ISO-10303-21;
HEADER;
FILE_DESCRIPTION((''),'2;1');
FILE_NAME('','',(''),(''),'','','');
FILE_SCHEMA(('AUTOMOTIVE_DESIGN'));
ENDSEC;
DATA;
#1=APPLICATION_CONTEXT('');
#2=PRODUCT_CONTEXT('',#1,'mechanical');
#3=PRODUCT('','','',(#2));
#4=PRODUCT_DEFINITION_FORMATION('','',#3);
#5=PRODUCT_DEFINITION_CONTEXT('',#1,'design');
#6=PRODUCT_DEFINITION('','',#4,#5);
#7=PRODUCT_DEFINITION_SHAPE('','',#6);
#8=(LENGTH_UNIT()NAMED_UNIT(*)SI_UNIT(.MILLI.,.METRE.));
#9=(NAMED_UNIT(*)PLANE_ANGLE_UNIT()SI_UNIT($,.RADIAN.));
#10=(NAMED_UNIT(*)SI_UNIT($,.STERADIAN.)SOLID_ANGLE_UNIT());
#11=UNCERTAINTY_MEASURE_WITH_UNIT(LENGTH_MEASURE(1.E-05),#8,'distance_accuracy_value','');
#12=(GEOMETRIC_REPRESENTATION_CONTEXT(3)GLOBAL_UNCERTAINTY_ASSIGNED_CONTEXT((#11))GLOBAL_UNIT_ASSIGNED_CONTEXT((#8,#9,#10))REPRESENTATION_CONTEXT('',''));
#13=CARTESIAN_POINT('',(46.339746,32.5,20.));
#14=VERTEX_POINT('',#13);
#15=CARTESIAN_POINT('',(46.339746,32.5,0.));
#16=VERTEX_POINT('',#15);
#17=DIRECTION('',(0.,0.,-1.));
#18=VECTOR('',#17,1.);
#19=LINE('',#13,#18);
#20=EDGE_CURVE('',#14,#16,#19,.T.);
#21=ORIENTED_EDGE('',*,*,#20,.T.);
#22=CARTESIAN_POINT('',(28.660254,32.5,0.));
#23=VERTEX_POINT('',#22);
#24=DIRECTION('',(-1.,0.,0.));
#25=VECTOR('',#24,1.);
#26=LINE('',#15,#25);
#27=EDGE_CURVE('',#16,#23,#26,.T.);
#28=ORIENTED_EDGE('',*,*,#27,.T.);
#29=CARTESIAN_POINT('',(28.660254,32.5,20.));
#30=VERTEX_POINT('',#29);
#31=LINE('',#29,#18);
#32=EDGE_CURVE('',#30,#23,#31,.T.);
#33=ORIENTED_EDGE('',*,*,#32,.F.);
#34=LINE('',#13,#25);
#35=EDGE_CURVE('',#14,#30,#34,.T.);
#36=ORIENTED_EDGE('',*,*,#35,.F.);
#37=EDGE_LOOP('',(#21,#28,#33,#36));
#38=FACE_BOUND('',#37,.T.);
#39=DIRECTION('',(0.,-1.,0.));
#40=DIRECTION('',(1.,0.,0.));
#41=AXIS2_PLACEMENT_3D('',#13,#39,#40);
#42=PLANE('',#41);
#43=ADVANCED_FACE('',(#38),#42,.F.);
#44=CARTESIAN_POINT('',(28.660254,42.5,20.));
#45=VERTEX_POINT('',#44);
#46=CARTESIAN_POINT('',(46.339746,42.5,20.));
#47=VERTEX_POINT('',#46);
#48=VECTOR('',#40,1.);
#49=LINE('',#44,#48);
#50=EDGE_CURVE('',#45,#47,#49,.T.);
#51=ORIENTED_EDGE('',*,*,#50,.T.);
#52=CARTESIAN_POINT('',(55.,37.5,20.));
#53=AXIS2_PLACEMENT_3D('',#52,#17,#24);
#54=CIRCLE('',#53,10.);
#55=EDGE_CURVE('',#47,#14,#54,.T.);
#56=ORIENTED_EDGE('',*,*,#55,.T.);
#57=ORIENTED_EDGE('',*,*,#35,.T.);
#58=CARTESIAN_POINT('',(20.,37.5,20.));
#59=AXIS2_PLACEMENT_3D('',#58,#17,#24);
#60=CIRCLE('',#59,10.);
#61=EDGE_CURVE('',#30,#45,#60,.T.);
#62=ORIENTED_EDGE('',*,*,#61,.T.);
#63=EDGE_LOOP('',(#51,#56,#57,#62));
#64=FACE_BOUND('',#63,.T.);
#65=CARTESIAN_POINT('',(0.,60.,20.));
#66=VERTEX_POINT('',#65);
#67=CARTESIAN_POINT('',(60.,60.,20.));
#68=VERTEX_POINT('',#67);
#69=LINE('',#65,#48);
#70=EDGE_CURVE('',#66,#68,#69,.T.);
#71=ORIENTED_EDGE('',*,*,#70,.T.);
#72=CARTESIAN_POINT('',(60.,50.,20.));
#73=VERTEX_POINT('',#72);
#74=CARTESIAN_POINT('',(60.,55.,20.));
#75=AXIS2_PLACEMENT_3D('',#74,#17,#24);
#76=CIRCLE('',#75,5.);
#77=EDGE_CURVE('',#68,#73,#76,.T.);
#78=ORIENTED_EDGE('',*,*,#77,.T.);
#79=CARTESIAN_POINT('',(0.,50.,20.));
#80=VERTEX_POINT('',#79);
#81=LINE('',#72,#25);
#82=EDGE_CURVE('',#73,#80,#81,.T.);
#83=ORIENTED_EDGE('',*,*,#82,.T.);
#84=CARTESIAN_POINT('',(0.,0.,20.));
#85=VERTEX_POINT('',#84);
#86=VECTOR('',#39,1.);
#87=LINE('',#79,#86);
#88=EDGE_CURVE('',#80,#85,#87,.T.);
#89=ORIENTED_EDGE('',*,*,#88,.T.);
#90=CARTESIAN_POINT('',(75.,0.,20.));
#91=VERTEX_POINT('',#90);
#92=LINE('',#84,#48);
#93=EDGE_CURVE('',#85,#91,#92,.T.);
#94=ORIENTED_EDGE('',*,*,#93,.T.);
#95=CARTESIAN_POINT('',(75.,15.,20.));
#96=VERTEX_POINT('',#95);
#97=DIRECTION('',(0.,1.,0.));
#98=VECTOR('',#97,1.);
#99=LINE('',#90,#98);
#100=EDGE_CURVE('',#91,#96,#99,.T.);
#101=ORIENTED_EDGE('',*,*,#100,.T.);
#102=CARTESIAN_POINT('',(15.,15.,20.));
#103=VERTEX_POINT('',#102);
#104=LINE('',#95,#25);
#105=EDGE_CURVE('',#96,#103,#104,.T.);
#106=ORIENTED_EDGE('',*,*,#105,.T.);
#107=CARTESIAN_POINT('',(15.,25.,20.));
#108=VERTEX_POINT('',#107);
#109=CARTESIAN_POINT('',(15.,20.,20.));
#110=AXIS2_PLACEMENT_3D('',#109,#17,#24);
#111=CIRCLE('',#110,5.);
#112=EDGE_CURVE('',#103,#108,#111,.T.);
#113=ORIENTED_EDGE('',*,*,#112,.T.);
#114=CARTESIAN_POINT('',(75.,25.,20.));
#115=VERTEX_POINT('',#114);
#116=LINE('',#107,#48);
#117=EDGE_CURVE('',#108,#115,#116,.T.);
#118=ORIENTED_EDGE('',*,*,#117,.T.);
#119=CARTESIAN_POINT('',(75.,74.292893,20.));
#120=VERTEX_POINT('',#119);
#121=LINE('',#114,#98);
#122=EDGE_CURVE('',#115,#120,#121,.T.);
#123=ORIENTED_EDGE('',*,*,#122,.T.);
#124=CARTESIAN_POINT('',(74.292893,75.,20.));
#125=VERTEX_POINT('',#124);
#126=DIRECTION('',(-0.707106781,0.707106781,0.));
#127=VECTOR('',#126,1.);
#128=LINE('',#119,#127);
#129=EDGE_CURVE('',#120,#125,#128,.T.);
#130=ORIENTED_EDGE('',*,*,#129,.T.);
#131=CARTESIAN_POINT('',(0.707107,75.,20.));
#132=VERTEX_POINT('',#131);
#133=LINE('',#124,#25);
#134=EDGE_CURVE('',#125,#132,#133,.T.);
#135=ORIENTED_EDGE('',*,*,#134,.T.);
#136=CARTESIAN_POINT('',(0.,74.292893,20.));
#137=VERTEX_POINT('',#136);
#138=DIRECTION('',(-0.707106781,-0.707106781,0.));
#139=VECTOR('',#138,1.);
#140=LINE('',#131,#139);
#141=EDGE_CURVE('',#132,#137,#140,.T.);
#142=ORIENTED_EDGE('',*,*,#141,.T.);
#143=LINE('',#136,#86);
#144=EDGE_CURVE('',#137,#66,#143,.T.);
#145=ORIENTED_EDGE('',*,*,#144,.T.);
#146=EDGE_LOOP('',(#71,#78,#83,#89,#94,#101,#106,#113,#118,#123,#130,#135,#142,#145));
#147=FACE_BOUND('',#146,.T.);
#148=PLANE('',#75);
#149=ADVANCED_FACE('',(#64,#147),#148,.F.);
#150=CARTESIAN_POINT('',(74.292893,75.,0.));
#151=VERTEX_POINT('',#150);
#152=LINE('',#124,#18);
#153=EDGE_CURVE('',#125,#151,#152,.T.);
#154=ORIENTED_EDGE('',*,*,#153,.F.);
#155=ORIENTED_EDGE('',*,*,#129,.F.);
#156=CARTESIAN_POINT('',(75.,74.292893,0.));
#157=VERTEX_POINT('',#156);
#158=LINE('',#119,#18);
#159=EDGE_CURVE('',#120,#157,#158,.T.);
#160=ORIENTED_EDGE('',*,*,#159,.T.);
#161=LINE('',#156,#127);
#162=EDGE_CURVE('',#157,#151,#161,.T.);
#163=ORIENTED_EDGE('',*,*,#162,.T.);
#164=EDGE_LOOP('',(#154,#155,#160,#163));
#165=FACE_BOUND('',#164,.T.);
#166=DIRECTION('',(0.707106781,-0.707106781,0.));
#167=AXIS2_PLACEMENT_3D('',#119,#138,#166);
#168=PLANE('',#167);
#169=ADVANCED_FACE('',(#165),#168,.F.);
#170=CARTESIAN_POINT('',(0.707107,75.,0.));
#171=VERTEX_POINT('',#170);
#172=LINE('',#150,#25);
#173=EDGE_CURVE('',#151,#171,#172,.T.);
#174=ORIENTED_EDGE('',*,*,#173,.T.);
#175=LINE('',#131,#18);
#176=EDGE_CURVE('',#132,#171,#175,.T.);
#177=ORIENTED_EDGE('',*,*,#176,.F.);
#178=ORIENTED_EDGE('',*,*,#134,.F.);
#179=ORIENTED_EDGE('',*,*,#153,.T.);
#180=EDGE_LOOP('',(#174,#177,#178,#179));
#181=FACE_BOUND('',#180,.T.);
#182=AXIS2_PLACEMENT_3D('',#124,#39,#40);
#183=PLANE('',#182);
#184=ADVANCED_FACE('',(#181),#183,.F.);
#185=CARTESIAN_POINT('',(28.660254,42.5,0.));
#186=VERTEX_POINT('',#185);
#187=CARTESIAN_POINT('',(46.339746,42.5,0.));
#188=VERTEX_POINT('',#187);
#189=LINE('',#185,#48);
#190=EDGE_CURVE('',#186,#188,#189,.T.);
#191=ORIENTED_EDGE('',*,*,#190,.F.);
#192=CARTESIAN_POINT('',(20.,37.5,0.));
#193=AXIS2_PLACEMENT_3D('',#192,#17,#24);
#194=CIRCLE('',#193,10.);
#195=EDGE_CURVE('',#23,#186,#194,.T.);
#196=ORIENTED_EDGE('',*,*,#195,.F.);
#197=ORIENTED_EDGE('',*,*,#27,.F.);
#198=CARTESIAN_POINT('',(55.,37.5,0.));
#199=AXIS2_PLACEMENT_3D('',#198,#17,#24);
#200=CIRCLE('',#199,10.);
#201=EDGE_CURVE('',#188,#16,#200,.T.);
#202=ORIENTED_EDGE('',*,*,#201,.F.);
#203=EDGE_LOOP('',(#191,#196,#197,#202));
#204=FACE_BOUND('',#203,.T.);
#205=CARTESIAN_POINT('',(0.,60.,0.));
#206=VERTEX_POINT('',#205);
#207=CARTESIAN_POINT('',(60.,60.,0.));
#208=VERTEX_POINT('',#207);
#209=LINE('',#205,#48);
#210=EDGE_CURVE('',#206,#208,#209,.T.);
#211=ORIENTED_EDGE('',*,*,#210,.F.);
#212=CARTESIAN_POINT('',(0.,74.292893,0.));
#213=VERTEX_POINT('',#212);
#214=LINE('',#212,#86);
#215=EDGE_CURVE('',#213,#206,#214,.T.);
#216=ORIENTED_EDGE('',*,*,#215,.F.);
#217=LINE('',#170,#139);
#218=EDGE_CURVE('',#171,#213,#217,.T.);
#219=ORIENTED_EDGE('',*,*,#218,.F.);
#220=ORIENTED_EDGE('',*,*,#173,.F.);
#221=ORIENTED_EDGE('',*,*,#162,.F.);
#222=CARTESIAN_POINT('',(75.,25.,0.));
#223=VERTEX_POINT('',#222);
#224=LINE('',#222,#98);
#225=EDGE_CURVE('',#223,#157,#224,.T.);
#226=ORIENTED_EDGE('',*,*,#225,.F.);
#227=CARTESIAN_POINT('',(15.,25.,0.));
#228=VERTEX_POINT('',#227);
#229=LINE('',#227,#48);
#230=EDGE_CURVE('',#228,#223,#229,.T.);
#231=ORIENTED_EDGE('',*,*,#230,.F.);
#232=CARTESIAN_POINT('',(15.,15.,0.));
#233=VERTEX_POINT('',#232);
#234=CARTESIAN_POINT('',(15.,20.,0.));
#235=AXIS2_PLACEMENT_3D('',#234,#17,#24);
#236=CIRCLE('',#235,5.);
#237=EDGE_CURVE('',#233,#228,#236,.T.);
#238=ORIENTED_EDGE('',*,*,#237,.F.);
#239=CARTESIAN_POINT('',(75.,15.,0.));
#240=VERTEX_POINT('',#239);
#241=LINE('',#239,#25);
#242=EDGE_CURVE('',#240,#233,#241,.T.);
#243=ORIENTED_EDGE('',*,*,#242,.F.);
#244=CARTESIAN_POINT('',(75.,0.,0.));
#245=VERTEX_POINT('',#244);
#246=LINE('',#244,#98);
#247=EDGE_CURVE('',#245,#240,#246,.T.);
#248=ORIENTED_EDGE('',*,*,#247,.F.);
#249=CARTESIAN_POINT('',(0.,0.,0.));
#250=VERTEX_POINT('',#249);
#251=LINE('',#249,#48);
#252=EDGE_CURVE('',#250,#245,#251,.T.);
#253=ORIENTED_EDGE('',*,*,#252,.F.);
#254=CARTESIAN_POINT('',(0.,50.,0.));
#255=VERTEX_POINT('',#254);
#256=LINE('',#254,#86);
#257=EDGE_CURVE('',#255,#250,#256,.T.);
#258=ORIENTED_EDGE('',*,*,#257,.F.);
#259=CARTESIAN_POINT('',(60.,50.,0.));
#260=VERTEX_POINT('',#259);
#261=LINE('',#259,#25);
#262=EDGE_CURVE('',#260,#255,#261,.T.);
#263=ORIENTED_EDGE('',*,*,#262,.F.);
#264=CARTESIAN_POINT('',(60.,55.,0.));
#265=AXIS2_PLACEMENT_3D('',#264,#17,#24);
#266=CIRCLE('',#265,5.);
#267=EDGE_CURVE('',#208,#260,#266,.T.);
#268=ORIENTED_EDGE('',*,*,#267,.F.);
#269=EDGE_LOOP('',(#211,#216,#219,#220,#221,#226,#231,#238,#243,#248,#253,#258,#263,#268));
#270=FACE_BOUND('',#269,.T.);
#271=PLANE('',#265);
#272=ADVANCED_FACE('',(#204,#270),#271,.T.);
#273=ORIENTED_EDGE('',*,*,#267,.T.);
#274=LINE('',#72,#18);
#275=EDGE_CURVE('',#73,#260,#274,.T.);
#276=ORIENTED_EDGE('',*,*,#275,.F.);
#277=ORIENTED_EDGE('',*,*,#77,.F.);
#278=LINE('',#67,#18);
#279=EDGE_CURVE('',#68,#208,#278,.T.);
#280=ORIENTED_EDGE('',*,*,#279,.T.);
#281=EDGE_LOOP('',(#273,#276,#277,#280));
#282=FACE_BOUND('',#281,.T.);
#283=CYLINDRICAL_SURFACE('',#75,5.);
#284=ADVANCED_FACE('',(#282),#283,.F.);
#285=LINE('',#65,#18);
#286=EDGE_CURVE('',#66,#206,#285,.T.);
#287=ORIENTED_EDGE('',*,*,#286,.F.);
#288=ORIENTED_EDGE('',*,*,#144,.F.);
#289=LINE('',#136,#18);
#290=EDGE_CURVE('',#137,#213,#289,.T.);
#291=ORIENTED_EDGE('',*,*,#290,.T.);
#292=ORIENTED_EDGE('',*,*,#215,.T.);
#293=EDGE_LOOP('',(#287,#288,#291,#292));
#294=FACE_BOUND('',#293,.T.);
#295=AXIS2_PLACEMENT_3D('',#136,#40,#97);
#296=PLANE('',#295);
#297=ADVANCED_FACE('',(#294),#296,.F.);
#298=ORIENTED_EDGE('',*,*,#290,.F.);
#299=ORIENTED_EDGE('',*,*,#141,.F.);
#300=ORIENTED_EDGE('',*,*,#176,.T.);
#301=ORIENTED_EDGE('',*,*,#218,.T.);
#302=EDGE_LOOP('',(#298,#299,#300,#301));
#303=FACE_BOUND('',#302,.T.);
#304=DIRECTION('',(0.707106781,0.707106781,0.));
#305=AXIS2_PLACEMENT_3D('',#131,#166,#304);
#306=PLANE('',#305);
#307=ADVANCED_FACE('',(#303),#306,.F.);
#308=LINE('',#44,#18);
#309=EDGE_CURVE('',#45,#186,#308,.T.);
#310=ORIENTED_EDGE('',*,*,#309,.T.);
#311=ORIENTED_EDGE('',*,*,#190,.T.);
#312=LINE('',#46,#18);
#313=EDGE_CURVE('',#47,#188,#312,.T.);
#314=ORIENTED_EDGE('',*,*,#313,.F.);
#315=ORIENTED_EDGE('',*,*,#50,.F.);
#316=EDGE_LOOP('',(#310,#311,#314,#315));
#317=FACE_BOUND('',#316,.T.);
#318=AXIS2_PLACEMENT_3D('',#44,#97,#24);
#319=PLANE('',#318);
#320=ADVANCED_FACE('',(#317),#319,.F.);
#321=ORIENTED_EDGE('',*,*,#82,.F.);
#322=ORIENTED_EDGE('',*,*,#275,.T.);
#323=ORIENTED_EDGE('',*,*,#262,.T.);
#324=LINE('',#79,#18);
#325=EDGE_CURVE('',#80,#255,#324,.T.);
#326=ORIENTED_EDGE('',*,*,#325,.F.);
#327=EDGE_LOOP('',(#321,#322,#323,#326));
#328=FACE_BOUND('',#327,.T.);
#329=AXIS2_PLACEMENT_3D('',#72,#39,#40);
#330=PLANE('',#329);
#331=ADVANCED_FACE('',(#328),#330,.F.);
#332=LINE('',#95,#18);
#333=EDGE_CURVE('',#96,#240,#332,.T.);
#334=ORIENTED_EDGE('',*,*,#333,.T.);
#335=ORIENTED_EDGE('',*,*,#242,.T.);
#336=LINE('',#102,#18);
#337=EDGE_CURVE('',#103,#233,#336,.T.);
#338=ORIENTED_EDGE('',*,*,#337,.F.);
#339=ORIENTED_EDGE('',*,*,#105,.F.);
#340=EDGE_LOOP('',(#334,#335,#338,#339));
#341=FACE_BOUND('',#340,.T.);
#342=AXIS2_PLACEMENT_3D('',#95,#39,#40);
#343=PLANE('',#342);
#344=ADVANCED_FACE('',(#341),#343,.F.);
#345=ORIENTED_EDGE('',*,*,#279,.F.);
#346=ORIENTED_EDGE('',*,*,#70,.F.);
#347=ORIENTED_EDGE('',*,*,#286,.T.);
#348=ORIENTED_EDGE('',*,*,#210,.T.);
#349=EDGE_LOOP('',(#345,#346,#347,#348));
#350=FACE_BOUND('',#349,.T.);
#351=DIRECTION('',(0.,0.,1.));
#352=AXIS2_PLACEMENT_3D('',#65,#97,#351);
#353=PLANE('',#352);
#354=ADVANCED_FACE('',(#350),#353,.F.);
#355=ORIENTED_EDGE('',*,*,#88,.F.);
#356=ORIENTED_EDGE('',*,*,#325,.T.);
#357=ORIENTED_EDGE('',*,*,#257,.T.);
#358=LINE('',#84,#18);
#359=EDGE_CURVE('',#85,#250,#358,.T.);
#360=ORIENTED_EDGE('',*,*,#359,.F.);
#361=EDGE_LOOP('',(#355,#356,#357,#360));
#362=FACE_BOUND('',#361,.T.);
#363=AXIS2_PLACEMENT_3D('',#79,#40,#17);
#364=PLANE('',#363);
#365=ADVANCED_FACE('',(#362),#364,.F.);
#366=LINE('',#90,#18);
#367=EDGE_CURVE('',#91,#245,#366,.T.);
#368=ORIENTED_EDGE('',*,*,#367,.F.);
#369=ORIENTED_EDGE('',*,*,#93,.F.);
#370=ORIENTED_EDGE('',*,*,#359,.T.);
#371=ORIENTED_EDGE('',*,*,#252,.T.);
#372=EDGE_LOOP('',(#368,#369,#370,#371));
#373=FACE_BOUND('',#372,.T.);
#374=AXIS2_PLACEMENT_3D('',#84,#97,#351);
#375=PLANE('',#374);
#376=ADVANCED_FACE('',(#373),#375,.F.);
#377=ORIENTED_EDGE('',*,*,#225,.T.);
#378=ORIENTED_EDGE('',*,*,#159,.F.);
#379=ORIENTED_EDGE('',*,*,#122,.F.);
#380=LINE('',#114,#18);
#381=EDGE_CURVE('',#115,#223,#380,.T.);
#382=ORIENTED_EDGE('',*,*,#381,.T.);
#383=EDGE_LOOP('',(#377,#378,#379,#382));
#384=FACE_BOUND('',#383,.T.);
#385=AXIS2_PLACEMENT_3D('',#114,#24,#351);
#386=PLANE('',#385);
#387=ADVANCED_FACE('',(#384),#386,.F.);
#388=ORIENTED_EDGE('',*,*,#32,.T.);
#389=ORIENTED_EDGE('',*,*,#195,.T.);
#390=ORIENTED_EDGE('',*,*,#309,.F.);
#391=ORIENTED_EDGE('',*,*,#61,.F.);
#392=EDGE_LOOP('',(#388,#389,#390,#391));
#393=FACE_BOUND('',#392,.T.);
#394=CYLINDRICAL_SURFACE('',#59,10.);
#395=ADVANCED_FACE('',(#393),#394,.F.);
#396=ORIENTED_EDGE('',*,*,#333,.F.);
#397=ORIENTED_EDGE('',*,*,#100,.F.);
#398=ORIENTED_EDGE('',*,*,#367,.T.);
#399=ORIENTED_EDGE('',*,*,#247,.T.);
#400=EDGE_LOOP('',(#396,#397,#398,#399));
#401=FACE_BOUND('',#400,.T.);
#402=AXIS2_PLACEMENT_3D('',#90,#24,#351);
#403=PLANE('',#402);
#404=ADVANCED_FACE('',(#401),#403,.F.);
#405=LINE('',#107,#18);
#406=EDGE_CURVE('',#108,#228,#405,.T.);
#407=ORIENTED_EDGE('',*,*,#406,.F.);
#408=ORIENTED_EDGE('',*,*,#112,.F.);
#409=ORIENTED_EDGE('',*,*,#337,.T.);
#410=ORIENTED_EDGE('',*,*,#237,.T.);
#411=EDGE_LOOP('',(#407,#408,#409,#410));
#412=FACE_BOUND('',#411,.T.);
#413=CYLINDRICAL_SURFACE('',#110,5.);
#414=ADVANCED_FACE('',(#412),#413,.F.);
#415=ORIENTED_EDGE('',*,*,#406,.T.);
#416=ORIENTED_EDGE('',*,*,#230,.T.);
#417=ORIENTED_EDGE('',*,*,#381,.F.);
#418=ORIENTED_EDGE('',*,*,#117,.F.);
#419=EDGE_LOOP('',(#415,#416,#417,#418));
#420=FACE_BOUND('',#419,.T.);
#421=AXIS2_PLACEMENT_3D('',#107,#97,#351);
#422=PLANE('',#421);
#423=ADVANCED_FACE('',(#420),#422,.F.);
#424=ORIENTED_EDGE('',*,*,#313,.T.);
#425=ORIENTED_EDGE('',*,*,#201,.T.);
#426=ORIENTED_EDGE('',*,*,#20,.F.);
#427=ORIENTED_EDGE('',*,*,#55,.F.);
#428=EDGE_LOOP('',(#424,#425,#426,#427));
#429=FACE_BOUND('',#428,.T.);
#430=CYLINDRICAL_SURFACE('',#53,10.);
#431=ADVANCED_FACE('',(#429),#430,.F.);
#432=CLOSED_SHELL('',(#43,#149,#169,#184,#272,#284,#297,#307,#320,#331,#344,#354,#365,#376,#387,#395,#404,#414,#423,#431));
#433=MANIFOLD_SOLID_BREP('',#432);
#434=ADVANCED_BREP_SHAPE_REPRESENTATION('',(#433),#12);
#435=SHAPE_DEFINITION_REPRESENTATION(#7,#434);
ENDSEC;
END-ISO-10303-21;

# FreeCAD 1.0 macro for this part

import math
import FreeCAD as App
import Part
import Sketcher
Q = App.Units.Quantity

doc = App.newDocument("Part")
body = doc.addObject("PartDesign::Body", "Body")

# Sketch on XY plane
sketch1 = body.newObject("Sketcher::SketchObject", "Sketch")
sketch1.AttachmentSupport = (doc.getObject("XY_Plane"), [""])
sketch1.MapMode = "FlatFace"
sketch1.addGeometry([
    Part.LineSegment(App.Vector(0, 50, 0), App.Vector(0, 0, 0)),  # 0
    Part.LineSegment(App.Vector(0, 0, 0), App.Vector(75, 0, 0)),  # 1
    Part.LineSegment(App.Vector(75, 0, 0), App.Vector(75, 15, 0)),  # 2
    Part.LineSegment(App.Vector(75, 15, 0), App.Vector(15, 15, 0)),  # 3
    Part.ArcOfCircle(Part.Circle(App.Vector(15, 20, 0), App.Vector(0, 0, 1), 5), math.radians(90), math.radians(270)),  # 4
    Part.LineSegment(App.Vector(15, 25, 0), App.Vector(75, 25, 0)),  # 5
    Part.LineSegment(App.Vector(75, 25, 0), App.Vector(75, 74.3, 0)),  # 6
    Part.LineSegment(App.Vector(75, 74.3, 0), App.Vector(74.3, 75, 0)),  # 7
    Part.LineSegment(App.Vector(74.3, 75, 0), App.Vector(0.7, 75, 0)),  # 8
    Part.LineSegment(App.Vector(0.7, 75, 0), App.Vector(0, 74.3, 0)),  # 9
    Part.LineSegment(App.Vector(0, 74.3, 0), App.Vector(0, 60, 0)),  # 10
    Part.LineSegment(App.Vector(0, 60, 0), App.Vector(60, 60, 0)),  # 11
    Part.ArcOfCircle(Part.Circle(App.Vector(60, 55, 0), App.Vector(0, 0, 1), 5), math.radians(-90), math.radians(90)),  # 12
    Part.LineSegment(App.Vector(60, 50, 0), App.Vector(0, 50, 0)),  # 13
], False)
sketch1.addConstraint([
    Sketcher.Constraint("Coincident", 0, 2, 1, 1),
    Sketcher.Constraint("Coincident", 1, 2, 2, 1),
    Sketcher.Constraint("Coincident", 2, 2, 3, 1),
    Sketcher.Constraint("Tangent", 3, 2, 4, 2),
    Sketcher.Constraint("Tangent", 4, 1, 5, 1),
    Sketcher.Constraint("Coincident", 5, 2, 6, 1),
    Sketcher.Constraint("Coincident", 6, 2, 7, 1),
    Sketcher.Constraint("Coincident", 7, 2, 8, 1),
    Sketcher.Constraint("Coincident", 8, 2, 9, 1),
    Sketcher.Constraint("Coincident", 9, 2, 10, 1),
    Sketcher.Constraint("Coincident", 10, 2, 11, 1),
    Sketcher.Constraint("Tangent", 11, 2, 12, 2),
    Sketcher.Constraint("Tangent", 12, 1, 13, 1),
    Sketcher.Constraint("Coincident", 13, 2, 0, 1),
    Sketcher.Constraint("Vertical", 0),
    Sketcher.Constraint("Horizontal", 1),
    Sketcher.Constraint("Vertical", 2),
    Sketcher.Constraint("Horizontal", 3),
    Sketcher.Constraint("Horizontal", 5),
    Sketcher.Constraint("Vertical", 6),
    Sketcher.Constraint("Horizontal", 8),
    Sketcher.Constraint("Vertical", 10),
    Sketcher.Constraint("Horizontal", 11),
    Sketcher.Constraint("Horizontal", 13),
    Sketcher.Constraint("Coincident", 0, 2, -1, 1),
    Sketcher.Constraint("Equal", 4, 12),
    Sketcher.Constraint("PointOnObject", 9, 2, -2),
    Sketcher.Constraint("Perpendicular", 7, 9),
    Sketcher.Constraint("Horizontal", 6, 2, 9, 2),
    Sketcher.Constraint("Vertical", 2, 2, 5, 2),
    Sketcher.Constraint("Equal", 5, 11),
    Sketcher.Constraint("Equal", 7, 9),
    Sketcher.Constraint("Radius", 4, Q("5 mm")),
    Sketcher.Constraint("DistanceX", 1, 1, 1, 2, Q("75 mm")),
    Sketcher.Constraint("DistanceX", 3, 2, 3, 1, Q("60 mm")),
    Sketcher.Constraint("DistanceY", 0, 2, 0, 1, Q("50 mm")),
    Sketcher.Constraint("DistanceY", 2, 1, 2, 2, Q("15 mm")),
    Sketcher.Constraint("Distance", 7, Q("1 mm")),
    Sketcher.Constraint("DistanceY", -1, 1, 7, 2, Q("75 mm")),
])
pad1 = body.newObject("PartDesign::Pad", "Pad")
pad1.Profile = sketch1
pad1.Length = 20

# Sketch on XY plane
sketch2 = body.newObject("Sketcher::SketchObject", "Sketch001")
sketch2.AttachmentSupport = (doc.getObject("XY_Plane"), [""])
sketch2.MapMode = "FlatFace"
sketch2.addGeometry([
    Part.LineSegment(App.Vector(46, 42, 0), App.Vector(29, 42, 0)),
    Part.ArcOfCircle(Part.Circle(App.Vector(20, 38, 0), App.Vector(0, 0, 1), 10), math.radians(30), math.radians(330)),
    Part.LineSegment(App.Vector(29, 32, 0), App.Vector(46, 32, 0)),
    Part.ArcOfCircle(Part.Circle(App.Vector(55, 38, 0), App.Vector(0, 0, 1), 10), math.radians(-150), math.radians(150)),
], False)
sketch2.addConstraint([
    Sketcher.Constraint("Coincident", 0, 2, 1, 1),
    Sketcher.Constraint("Coincident", 1, 2, 2, 1),
    Sketcher.Constraint("Coincident", 2, 2, 3, 1),
    Sketcher.Constraint("Coincident", 3, 2, 0, 1),
    Sketcher.Constraint("Horizontal", 0),
    Sketcher.Constraint("Horizontal", 2),
    Sketcher.Constraint("Equal", 1, 3),
    Sketcher.Constraint("Horizontal", 1, 3, 3, 3),
    Sketcher.Constraint("Vertical", 0, 2, 1, 2),
    Sketcher.Constraint("Radius", 1, Q("10 mm")),
    Sketcher.Constraint("DistanceX", -1, 1, 1, 3, Q("20 mm")),
    Sketcher.Constraint("DistanceX", -1, 1, 3, 3, Q("55 mm")),
    Sketcher.Constraint("DistanceY", 1, 3, 0, 2, Q("5 mm")),
    Sketcher.Constraint("DistanceY", -1, 1, 1, 3, Q("37.5 mm")),
])
pocket1 = body.newObject("PartDesign::Pocket", "Pocket")
pocket1.Profile = sketch2
pocket1.Type = "ThroughAll"
pocket1.Reversed = True

doc.recompute()
